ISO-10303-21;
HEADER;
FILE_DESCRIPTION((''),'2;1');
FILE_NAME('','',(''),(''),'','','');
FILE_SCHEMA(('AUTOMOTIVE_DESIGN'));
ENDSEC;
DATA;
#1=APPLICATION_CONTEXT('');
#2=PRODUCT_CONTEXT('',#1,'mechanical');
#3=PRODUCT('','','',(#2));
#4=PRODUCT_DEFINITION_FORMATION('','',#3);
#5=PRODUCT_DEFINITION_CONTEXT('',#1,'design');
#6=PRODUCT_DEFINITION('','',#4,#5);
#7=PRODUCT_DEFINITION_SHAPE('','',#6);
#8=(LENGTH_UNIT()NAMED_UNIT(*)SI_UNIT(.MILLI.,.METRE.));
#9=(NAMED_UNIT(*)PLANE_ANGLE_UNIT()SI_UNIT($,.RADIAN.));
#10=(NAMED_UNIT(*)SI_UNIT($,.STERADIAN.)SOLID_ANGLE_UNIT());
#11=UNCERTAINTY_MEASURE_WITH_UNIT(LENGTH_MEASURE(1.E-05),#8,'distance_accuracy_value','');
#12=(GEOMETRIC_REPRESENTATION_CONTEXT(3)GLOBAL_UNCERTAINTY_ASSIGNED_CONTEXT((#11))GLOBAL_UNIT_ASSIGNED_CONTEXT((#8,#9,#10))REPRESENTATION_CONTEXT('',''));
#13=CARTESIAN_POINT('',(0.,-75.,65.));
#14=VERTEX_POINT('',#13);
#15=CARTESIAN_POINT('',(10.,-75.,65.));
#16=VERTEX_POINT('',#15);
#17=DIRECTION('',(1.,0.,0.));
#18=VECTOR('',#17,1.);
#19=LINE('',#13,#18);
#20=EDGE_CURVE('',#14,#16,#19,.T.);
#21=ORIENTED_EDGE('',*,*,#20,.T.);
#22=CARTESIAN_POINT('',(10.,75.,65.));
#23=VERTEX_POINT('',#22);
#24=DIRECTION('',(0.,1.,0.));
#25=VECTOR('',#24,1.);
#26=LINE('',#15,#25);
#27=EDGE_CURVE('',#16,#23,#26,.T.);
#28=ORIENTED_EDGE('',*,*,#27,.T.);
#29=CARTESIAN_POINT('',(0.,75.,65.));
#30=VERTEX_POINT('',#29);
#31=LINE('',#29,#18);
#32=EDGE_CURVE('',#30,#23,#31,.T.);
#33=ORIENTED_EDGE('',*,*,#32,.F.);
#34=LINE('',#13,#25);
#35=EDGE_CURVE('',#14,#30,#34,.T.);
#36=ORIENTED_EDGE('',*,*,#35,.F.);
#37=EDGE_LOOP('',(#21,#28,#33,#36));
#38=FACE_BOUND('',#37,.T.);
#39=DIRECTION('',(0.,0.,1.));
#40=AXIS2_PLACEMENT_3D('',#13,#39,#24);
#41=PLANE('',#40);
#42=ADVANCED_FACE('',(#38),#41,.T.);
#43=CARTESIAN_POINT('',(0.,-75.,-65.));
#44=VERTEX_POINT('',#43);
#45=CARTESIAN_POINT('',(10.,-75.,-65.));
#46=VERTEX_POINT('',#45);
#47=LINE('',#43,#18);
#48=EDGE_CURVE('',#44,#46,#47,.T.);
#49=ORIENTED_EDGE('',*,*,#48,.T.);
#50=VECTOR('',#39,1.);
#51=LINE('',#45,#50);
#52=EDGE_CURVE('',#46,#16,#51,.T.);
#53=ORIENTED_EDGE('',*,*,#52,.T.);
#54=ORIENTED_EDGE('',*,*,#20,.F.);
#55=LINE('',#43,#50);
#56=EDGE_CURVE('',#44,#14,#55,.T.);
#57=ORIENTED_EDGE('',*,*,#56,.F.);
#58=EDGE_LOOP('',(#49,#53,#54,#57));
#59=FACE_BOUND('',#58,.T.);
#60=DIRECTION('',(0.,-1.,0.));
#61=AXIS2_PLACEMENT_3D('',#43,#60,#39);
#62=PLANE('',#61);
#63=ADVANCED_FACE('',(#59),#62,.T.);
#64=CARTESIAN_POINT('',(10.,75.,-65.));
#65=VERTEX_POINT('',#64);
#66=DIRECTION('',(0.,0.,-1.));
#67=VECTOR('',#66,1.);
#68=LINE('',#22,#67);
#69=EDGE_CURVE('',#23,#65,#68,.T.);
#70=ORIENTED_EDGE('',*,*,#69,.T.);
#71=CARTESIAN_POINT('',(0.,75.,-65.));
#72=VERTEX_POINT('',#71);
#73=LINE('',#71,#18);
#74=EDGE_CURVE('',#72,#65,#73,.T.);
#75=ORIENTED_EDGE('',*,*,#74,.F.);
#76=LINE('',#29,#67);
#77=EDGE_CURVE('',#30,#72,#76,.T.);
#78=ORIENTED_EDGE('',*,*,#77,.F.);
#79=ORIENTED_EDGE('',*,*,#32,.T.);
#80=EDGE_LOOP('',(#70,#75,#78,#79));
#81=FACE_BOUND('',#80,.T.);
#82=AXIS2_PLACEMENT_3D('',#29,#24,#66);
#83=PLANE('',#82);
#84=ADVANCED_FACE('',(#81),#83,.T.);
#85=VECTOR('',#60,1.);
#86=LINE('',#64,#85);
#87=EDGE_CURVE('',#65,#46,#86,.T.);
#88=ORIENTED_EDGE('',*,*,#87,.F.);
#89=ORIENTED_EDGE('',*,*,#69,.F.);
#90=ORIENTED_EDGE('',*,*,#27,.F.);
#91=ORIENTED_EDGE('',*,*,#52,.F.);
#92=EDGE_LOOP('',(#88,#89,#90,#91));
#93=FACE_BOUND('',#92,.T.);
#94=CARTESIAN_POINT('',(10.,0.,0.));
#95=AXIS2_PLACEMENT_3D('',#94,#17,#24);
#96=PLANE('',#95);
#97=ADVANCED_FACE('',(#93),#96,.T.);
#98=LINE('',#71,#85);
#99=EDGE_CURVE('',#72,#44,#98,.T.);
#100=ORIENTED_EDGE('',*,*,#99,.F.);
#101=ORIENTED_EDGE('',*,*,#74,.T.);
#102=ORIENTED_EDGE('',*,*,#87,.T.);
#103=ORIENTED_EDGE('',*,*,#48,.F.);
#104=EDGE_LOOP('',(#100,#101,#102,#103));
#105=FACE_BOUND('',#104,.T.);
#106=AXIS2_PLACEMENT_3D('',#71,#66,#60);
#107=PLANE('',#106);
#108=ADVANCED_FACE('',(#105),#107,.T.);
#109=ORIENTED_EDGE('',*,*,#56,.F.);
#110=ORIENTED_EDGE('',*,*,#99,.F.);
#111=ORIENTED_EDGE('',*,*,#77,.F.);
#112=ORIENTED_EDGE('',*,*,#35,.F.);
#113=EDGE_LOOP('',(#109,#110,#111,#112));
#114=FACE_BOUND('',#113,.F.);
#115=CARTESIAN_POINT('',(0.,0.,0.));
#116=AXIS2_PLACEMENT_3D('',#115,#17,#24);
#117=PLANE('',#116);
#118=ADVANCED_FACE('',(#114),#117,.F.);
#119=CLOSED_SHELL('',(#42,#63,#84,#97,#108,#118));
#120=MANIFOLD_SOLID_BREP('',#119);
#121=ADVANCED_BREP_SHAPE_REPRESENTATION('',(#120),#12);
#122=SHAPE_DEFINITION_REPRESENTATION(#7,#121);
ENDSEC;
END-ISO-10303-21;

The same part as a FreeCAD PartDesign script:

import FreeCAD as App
import Part
import Sketcher


def add_polygon(sketch, points):
    """Adds a closed chain of lines whose ends are joined by coincident constraints."""
    first, n = sketch.GeometryCount, len(points)
    for a, b in zip(points, points[1:] + points[:1]):
        sketch.addGeometry(Part.LineSegment(App.Vector(*a, 0), App.Vector(*b, 0)), False)
    for i in range(n):
        sketch.addConstraint(Sketcher.Constraint("Coincident", first + i, 2, first + (i + 1) % n, 1))

doc = App.newDocument("Part")
body = doc.addObject("PartDesign::Body", "Body")

sketch1 = body.newObject("Sketcher::SketchObject", "Sketch")
sketch1.AttachmentSupport = (doc.getObject("YZ_Plane"), [""])
sketch1.MapMode = "FlatFace"
add_polygon(sketch1, [(75, 65), (-75, 65), (-75, -65), (75, -65)])
sketch1.addConstraint([
    Sketcher.Constraint("Horizontal", 0),
    Sketcher.Constraint("Vertical", 1),
    Sketcher.Constraint("Horizontal", 2),
    Sketcher.Constraint("Vertical", 3),
    Sketcher.Constraint("Symmetric", 0, 2, 2, 2, -1, 1),
    Sketcher.Constraint("DistanceX", 0, 2, 0, 1, 150.0),
    Sketcher.Constraint("DistanceY", 1, 2, 1, 1, 130.0),
])
pad1 = body.newObject("PartDesign::Pad", "Pad")
pad1.Profile = sketch1
pad1.Length = 10

doc.recompute()
